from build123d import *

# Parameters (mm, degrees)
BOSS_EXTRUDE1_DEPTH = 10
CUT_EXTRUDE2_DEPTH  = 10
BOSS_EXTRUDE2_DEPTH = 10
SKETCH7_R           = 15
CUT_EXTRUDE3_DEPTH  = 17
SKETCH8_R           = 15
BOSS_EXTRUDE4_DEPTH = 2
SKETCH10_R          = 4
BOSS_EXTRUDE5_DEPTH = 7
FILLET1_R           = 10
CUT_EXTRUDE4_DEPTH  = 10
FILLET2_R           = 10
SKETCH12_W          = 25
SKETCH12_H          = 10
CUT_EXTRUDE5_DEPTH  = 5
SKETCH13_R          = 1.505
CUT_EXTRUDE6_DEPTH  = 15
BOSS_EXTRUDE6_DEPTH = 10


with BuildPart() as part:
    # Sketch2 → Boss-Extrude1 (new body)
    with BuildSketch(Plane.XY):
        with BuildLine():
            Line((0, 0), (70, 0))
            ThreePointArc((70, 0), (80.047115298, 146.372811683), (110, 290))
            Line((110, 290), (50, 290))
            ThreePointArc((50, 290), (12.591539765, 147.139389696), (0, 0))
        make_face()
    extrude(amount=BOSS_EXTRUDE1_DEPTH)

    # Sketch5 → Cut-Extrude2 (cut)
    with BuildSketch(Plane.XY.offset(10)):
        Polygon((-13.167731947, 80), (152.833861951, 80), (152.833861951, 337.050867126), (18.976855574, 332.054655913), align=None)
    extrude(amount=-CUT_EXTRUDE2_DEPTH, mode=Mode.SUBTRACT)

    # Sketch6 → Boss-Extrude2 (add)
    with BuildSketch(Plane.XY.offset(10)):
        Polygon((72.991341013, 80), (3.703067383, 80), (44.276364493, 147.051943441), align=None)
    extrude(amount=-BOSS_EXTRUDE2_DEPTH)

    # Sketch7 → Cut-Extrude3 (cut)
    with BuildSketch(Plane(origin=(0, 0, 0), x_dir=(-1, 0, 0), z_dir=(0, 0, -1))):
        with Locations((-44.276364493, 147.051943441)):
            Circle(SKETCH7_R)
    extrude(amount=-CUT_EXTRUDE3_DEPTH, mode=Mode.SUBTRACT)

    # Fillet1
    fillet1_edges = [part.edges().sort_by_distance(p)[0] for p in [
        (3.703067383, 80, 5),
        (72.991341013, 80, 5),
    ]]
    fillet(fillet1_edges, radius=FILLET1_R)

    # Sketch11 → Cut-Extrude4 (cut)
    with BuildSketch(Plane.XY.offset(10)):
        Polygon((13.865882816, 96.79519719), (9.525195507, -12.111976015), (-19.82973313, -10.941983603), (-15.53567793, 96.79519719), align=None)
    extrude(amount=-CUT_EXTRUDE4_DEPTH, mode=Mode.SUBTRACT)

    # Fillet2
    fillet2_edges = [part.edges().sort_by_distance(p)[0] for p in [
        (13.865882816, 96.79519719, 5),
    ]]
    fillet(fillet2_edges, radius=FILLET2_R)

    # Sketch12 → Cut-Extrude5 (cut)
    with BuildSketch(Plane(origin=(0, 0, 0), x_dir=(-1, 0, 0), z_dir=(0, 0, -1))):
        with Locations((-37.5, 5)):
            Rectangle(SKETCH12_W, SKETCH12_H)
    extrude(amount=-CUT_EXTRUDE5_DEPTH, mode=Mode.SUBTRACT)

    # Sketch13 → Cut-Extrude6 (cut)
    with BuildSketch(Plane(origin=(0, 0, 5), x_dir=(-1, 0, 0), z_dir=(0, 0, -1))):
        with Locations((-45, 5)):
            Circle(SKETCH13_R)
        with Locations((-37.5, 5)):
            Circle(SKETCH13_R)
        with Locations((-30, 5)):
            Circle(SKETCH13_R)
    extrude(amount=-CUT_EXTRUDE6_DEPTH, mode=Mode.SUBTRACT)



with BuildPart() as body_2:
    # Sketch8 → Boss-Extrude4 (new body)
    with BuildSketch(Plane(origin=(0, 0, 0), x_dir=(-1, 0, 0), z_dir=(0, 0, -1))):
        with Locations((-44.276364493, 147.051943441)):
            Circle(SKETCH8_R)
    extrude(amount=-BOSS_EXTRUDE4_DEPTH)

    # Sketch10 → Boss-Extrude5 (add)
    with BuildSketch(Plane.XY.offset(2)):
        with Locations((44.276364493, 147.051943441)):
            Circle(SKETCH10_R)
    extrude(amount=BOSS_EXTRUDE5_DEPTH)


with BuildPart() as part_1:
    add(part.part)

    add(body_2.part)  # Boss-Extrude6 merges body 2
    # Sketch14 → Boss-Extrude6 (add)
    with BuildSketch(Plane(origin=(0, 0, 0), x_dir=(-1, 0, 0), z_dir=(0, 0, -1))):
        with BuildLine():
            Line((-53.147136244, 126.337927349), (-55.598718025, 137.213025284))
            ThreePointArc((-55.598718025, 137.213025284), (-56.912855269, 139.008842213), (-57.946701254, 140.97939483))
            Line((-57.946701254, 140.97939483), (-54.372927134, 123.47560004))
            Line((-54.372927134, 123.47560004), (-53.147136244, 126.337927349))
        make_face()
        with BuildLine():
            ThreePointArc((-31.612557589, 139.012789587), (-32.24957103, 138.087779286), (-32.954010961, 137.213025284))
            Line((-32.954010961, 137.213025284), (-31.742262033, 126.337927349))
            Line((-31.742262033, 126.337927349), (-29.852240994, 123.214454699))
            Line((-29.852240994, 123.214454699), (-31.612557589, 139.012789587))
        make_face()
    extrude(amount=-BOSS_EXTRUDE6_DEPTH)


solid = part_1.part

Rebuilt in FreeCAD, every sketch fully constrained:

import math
import FreeCAD as App
import Part
import Sketcher

V = App.Vector


def edges_at(feature, points):
    """Names of the edges that pass closest to the given points."""
    edges = feature.Shape.Edges
    near = lambda p: min(range(len(edges)), key=lambda i: edges[i].distToShape(Part.Vertex(*p))[0])
    return sorted({f"Edge{near(p) + 1}" for p in points})


def add_polygon(sketch, points):
    """Adds a closed chain of lines whose ends are joined by coincident constraints."""
    first, n = sketch.GeometryCount, len(points)
    for a, b in zip(points, points[1:] + points[:1]):
        sketch.addGeometry(Part.LineSegment(App.Vector(*a, 0), App.Vector(*b, 0)), False)
    for i in range(n):
        sketch.addConstraint(Sketcher.Constraint("Coincident", first + i, 2, first + (i + 1) % n, 1))

doc = App.newDocument("Part")
body = doc.addObject("PartDesign::Body", "Body")

# Sketch on XY plane
sketch1 = body.newObject("Sketcher::SketchObject", "Sketch")
sketch1.AttachmentSupport = (doc.getObject("XY_Plane"), [""])
sketch1.MapMode = "FlatFace"
sketch1.addGeometry([
    Part.LineSegment(V(0, 0, 0), V(70, 0, 0)),
    Part.ArcOfCircle(Part.Circle(V(1141, 0, 0), V(0, 0, 1), 1071), math.radians(164.29), math.radians(180)),
    Part.LineSegment(V(110, 290, 0), V(50, 290, 0)),
    Part.ArcOfCircle(Part.Circle(V(866, 0, 0), V(0, 0, 1), 866), math.radians(160.44), math.radians(180)),
], False)
sketch1.addConstraint([
    Sketcher.Constraint("Coincident", 0, 2, 1, 2),
    Sketcher.Constraint("Coincident", 1, 1, 2, 1),
    Sketcher.Constraint("Coincident", 2, 2, 3, 1),
    Sketcher.Constraint("Coincident", 3, 2, 0, 1),
    Sketcher.Constraint("Horizontal", 0),
    Sketcher.Constraint("Horizontal", 2),
    Sketcher.Constraint("PointOnObject", 1, 3, -1),
    Sketcher.Constraint("PointOnObject", 3, 3, -1),
    Sketcher.Constraint("PointOnObject", 0, 2, -1),
    Sketcher.Constraint("Radius", 3, 866.0),
    Sketcher.Constraint("DistanceX", 0, 1, 0, 2, 70.0),
    Sketcher.Constraint("DistanceX", 2, 2, 2, 1, 60.0),
    Sketcher.Constraint("Radius", 1, 1071.25),
    Sketcher.Constraint("DistanceX", -1, 1, 3, 3, 866.0),
])
pad1 = body.newObject("PartDesign::Pad", "Pad")
pad1.Profile = sketch1
pad1.Length = 10

# Sketch on XY plane
sketch2 = body.newObject("Sketcher::SketchObject", "Sketch001")
sketch2.AttachmentSupport = (doc.getObject("XY_Plane"), [""])
sketch2.MapMode = "FlatFace"
sketch2.AttachmentOffset = App.Placement(V(0, 0, 10), App.Rotation())
add_polygon(sketch2, [(-13, 80), (153, 80), (153, 337), (19, 332)])  # lines 0-3
sketch2.addConstraint([
    Sketcher.Constraint("Horizontal", 0),
    Sketcher.Constraint("Vertical", 1),
    Sketcher.Constraint("DistanceY", -1, 1, 0, 2, 80.0),
    Sketcher.Constraint("DistanceX", 0, 1, 0, 2, 166.001594),
    Sketcher.Constraint("DistanceY", 1, 1, 1, 2, 257.050867),
    Sketcher.Constraint("DistanceX", -1, 1, 0, 2, 152.833862),
    Sketcher.Constraint("DistanceY", 2, 2, 1, 2, 4.996211),
    Sketcher.Constraint("Distance", 2, 133.950216),
])
pocket1 = body.newObject("PartDesign::Pocket", "Pocket")
pocket1.Profile = sketch2
pocket1.Length = 10

# Sketch on XY plane
sketch3 = body.newObject("Sketcher::SketchObject", "Sketch002")
sketch3.AttachmentSupport = (doc.getObject("XY_Plane"), [""])
sketch3.MapMode = "FlatFace"
sketch3.AttachmentOffset = App.Placement(V(0, 0, 10), App.Rotation())
add_polygon(sketch3, [(4, 80), (73, 80), (44, 147)])  # lines 0-2
sketch3.addConstraint([
    Sketcher.Constraint("Horizontal", 0),
    Sketcher.Constraint("DistanceY", -1, 1, 0, 2, 80.0),
    Sketcher.Constraint("DistanceX", 0, 1, 0, 2, 69.288274),
    Sketcher.Constraint("DistanceX", -1, 1, 0, 2, 72.991341),
    Sketcher.Constraint("Distance", 1, 72.941847),
    Sketcher.Constraint("Distance", 2, 78.371905),
])
pad2 = body.newObject("PartDesign::Pad", "Pad001")
pad2.Profile = sketch3
pad2.Length = 10
pad2.Reversed = True

# Sketch on XY plane
sketch4 = body.newObject("Sketcher::SketchObject", "Sketch003")
sketch4.AttachmentSupport = (doc.getObject("XY_Plane"), [""])
sketch4.MapMode = "FlatFace"
sketch4.addGeometry(Part.Circle(V(44, 147, 0), V(0, 0, 1), 15), False)
sketch4.addConstraint([
    Sketcher.Constraint("Diameter", 0, 30.0),
    Sketcher.Constraint("DistanceX", -1, 1, 0, 3, 44.276364),
    Sketcher.Constraint("DistanceY", -1, 1, 0, 3, 147.051943),
])
pocket2 = body.newObject("PartDesign::Pocket", "Pocket001")
pocket2.Profile = sketch4
pocket2.Length = 17
pocket2.Reversed = True
doc.recompute()

fillet = body.newObject("PartDesign::Fillet", "Fillet")
fillet.Base = (pocket2, edges_at(pocket2, [(3.703, 80, 5), (72.991, 80, 5)]))
fillet.Radius = 10

# Sketch on XY plane
sketch5 = body.newObject("Sketcher::SketchObject", "Sketch004")
sketch5.AttachmentSupport = (doc.getObject("XY_Plane"), [""])
sketch5.MapMode = "FlatFace"
sketch5.AttachmentOffset = App.Placement(V(0, 0, 10), App.Rotation())
add_polygon(sketch5, [(10, -12), (14, 97), (-16, 97), (-20, -11)])  # lines 0-3
sketch5.addConstraint([
    Sketcher.Constraint("Horizontal", 1),
    Sketcher.Constraint("Parallel", 0, 2),
    Sketcher.Constraint("Perpendicular", 2, 3),
    Sketcher.Constraint("DistanceX", 1, 2, 1, 1, 29.401561),
    Sketcher.Constraint("Distance", 0, 108.993642),
    Sketcher.Constraint("Distance", 2, 107.82272),
    Sketcher.Constraint("DistanceX", -1, 1, 0, 2, 13.865883),
    Sketcher.Constraint("DistanceY", -1, 1, 0, 2, 96.795197),
])
pocket3 = body.newObject("PartDesign::Pocket", "Pocket002")
pocket3.Profile = sketch5
pocket3.Length = 10
doc.recompute()

fillet2 = body.newObject("PartDesign::Fillet", "Fillet001")
fillet2.Base = (pocket3, edges_at(pocket3, [(13.866, 96.795, 5)]))
fillet2.Radius = 10

# Sketch on XY plane
sketch6 = body.newObject("Sketcher::SketchObject", "Sketch005")
sketch6.AttachmentSupport = (doc.getObject("XY_Plane"), [""])
sketch6.MapMode = "FlatFace"
add_polygon(sketch6, [(50, 10), (50, 0), (25, 0), (25, 10)])  # lines 0-3
sketch6.addConstraint([
    Sketcher.Constraint("Vertical", 0),
    Sketcher.Constraint("Horizontal", 1),
    Sketcher.Constraint("Vertical", 2),
    Sketcher.Constraint("Horizontal", 3),
    Sketcher.Constraint("PointOnObject", 0, 2, -1),
    Sketcher.Constraint("DistanceX", 1, 2, 1, 1, 25.0),
    Sketcher.Constraint("DistanceY", 0, 2, 0, 1, 10.0),
    Sketcher.Constraint("DistanceX", -1, 1, 0, 2, 50.0),
])
pocket4 = body.newObject("PartDesign::Pocket", "Pocket003")
pocket4.Profile = sketch6
pocket4.Length = 5
pocket4.Reversed = True

# Sketch on XY plane
sketch7 = body.newObject("Sketcher::SketchObject", "Sketch006")
sketch7.AttachmentSupport = (doc.getObject("XY_Plane"), [""])
sketch7.MapMode = "FlatFace"
sketch7.AttachmentOffset = App.Placement(V(0, 0, 5), App.Rotation())
sketch7.addGeometry([
    Part.Circle(V(45, 5, 0), V(0, 0, 1), 1.5),
    Part.Circle(V(37.5, 5, 0), V(0, 0, 1), 1.5),
    Part.Circle(V(30, 5, 0), V(0, 0, 1), 1.5),
], False)
sketch7.addConstraint([
    Sketcher.Constraint("Equal", 0, 1),
    Sketcher.Constraint("Equal", 1, 2),
    Sketcher.Constraint("Horizontal", 0, 3, 1, 3),
    Sketcher.Constraint("Horizontal", 1, 3, 2, 3),
    Sketcher.Constraint("Diameter", 0, 3.01),
    Sketcher.Constraint("DistanceX", -1, 1, 0, 3, 45.0),
    Sketcher.Constraint("DistanceY", -1, 1, 0, 3, 5.0),
    Sketcher.Constraint("DistanceX", -1, 1, 2, 3, 30.0),
    Sketcher.Constraint("DistanceX", -1, 1, 1, 3, 37.5),
])
pocket5 = body.newObject("PartDesign::Pocket", "Pocket004")
pocket5.Profile = sketch7
pocket5.Length = 15
pocket5.Reversed = True
body2 = doc.addObject("PartDesign::Body", "Body001")

# Sketch on XY plane
sketch8 = body2.newObject("Sketcher::SketchObject", "Sketch007")
sketch8.AttachmentSupport = (doc.getObject("XY_Plane001"), [""])
sketch8.MapMode = "FlatFace"
sketch8.addGeometry(Part.Circle(V(44, 147, 0), V(0, 0, 1), 15), False)
sketch8.addConstraint([
    Sketcher.Constraint("Diameter", 0, 30.0),
    Sketcher.Constraint("DistanceX", -1, 1, 0, 3, 44.276364),
    Sketcher.Constraint("DistanceY", -1, 1, 0, 3, 147.051943),
])
pad3 = body2.newObject("PartDesign::Pad", "Pad002")
pad3.Profile = sketch8
pad3.Length = 2

# Sketch on XY plane
sketch9 = body2.newObject("Sketcher::SketchObject", "Sketch008")
sketch9.AttachmentSupport = (doc.getObject("XY_Plane001"), [""])
sketch9.MapMode = "FlatFace"
sketch9.AttachmentOffset = App.Placement(V(0, 0, 2), App.Rotation())
sketch9.addGeometry(Part.Circle(V(44.3, 147.1, 0), V(0, 0, 1), 4), False)
sketch9.addConstraint([
    Sketcher.Constraint("Diameter", 0, 8.0),
    Sketcher.Constraint("DistanceX", -1, 1, 0, 3, 44.276364),
    Sketcher.Constraint("DistanceY", -1, 1, 0, 3, 147.051943),
])
pad4 = body2.newObject("PartDesign::Pad", "Pad003")
pad4.Profile = sketch9
pad4.Length = 7
doc.recompute()

boolean = body.newObject("PartDesign::Boolean", "Boolean")
boolean.Type = "Fuse"
boolean.addObjects([body2])

# Sketch on XY plane
sketch10 = body.newObject("Sketcher::SketchObject", "Sketch009")
sketch10.AttachmentSupport = (doc.getObject("XY_Plane"), [""])
sketch10.MapMode = "FlatFace"
sketch10.addGeometry([
    Part.LineSegment(V(53.1, 126.3, 0), V(55.6, 137.2, 0)),  # 0
    Part.ArcOfCircle(Part.Circle(V(44.2, 146.9, 0), V(0, 0, 1), 15), math.radians(-40.45), math.radians(-23.43)),  # 1
    Part.LineSegment(V(57.9, 141, 0), V(54.4, 123.5, 0)),  # 2
    Part.LineSegment(V(54.4, 123.5, 0), V(53.1, 126.3, 0)),  # 3
    Part.ArcOfCircle(Part.Circle(V(44.3, 147.1, 0), V(0, 0, 1), 15), math.radians(-147.59), math.radians(-139.01)),  # 4
    Part.LineSegment(V(33, 137.2, 0), V(31.7, 126.3, 0)),  # 5
    Part.LineSegment(V(31.7, 126.3, 0), V(29.9, 123.2, 0)),  # 6
    Part.LineSegment(V(29.9, 123.2, 0), V(31.6, 139, 0)),  # 7
], False)
sketch10.addConstraint([
    Sketcher.Constraint("Coincident", 0, 2, 1, 1),
    Sketcher.Constraint("Coincident", 1, 2, 2, 1),
    Sketcher.Constraint("Coincident", 2, 2, 3, 1),
    Sketcher.Constraint("Coincident", 3, 2, 0, 1),
    Sketcher.Constraint("Coincident", 4, 2, 5, 1),
    Sketcher.Constraint("Coincident", 5, 2, 6, 1),
    Sketcher.Constraint("Coincident", 6, 2, 7, 1),
    Sketcher.Constraint("Coincident", 7, 2, 4, 1),
    Sketcher.Constraint("Parallel", 5, 7),
    Sketcher.Constraint("Horizontal", 0, 2, 4, 2),
    Sketcher.Constraint("Horizontal", 3, 2, 5, 2),
    Sketcher.Constraint("Radius", 4, 15.0),
    Sketcher.Constraint("Radius", 1, 14.992335),
    Sketcher.Constraint("Distance", 2, 17.864901),
    Sketcher.Constraint("Distance", 5, 10.942399),
    Sketcher.Constraint("DistanceX", -1, 1, 1, 2, 57.946701),
    Sketcher.Constraint("DistanceY", -1, 1, 2, 2, 123.4756),
    Sketcher.Constraint("DistanceY", 7, 2, 1, 3, 7.9274),
    Sketcher.Constraint("Distance", 6, 3.650789),
    Sketcher.Constraint("DistanceY", -1, 1, 1, 3, 146.94019),
    Sketcher.Constraint("DistanceX", -1, 1, 0, 2, 55.598718),
    Sketcher.Constraint("DistanceX", -1, 1, 4, 2, 32.954011),
    Sketcher.Constraint("DistanceX", -1, 1, 6, 2, 29.852241),
    Sketcher.Constraint("DistanceX", 1, 3, 4, 3, 0.086081),
    Sketcher.Constraint("DistanceY", 0, 2, 4, 3, 9.838918),
    Sketcher.Constraint("DistanceX", 3, 2, 2, 2, 1.225791),
])
pad5 = body.newObject("PartDesign::Pad", "Pad004")
pad5.Profile = sketch10
pad5.Length = 10

doc.recompute()
